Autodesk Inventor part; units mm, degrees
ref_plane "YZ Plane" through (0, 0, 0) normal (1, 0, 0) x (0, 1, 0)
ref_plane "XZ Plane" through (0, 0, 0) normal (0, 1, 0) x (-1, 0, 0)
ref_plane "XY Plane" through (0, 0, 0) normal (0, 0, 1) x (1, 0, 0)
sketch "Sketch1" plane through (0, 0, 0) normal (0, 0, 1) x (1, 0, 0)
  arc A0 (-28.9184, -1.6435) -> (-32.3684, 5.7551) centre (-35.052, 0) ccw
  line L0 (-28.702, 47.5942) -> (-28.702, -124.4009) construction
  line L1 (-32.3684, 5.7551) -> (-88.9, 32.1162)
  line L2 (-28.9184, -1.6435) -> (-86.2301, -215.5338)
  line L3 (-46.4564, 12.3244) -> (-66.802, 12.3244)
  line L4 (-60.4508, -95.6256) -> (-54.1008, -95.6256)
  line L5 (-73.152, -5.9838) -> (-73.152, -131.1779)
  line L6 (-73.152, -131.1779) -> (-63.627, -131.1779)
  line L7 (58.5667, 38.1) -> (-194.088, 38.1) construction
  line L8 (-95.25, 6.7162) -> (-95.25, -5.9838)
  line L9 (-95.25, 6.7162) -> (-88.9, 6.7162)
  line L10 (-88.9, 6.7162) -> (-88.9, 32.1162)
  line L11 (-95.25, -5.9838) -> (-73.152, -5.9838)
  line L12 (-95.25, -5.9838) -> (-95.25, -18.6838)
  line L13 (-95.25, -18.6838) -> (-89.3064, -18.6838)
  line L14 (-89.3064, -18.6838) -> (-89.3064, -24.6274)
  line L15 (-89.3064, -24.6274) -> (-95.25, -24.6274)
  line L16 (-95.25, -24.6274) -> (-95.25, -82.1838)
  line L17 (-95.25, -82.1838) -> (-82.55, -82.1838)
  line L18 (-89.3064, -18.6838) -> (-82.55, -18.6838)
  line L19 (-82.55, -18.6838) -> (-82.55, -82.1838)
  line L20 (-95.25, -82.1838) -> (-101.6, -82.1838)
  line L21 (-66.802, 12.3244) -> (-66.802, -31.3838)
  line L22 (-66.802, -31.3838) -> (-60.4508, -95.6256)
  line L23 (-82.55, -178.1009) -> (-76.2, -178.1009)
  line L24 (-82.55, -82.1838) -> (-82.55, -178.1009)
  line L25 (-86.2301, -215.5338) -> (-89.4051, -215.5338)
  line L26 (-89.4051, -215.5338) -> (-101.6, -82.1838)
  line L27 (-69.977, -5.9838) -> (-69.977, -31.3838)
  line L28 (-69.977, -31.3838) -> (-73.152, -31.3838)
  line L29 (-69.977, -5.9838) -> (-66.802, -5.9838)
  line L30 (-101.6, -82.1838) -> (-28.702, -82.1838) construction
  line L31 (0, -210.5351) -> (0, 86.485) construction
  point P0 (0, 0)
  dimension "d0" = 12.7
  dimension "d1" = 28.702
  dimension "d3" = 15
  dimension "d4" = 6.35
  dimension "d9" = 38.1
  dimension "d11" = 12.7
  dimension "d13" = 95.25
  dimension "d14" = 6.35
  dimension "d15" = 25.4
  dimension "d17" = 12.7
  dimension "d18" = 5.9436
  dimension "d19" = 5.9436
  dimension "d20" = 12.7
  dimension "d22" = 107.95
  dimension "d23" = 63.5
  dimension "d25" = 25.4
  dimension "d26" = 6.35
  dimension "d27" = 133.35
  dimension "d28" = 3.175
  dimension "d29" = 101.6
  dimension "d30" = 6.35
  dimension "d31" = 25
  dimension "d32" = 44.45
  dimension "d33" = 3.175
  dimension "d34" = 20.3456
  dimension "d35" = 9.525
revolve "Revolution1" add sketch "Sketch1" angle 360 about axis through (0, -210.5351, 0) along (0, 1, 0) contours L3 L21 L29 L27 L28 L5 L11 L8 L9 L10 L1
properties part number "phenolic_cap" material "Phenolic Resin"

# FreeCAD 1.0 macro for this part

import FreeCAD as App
import Part
import Sketcher

V = App.Vector
Q = App.Units.Quantity


def add_polygon(sketch, points):
    """Adds a closed chain of lines whose ends are joined by coincident constraints."""
    first, n = sketch.GeometryCount, len(points)
    for a, b in zip(points, points[1:] + points[:1]):
        sketch.addGeometry(Part.LineSegment(App.Vector(*a, 0), App.Vector(*b, 0)), False)
    for i in range(n):
        sketch.addConstraint(Sketcher.Constraint("Coincident", first + i, 2, first + (i + 1) % n, 1))

doc = App.newDocument("Part")
body = doc.addObject("PartDesign::Body", "Body")

# Sketch on XY plane
sketch1 = body.newObject("Sketcher::SketchObject", "Sketch")
sketch1.AttachmentSupport = (doc.getObject("XY_Plane"), [""])
sketch1.MapMode = "FlatFace"
add_polygon(sketch1, [(-66.8, 12.3), (-46.5, 12.3), (-88.9, 32.1), (-88.9, 6.7), (-95.2, 6.7), (-95.2, -6), (-73.2, -6), (-73.2, -31.4), (-70, -31.4), (-70, -6), (-66.8, -6)])  # lines 0-10
sketch1.addConstraint(Sketcher.Constraint("Horizontal", 0))
sketch1.addConstraint(Sketcher.Constraint("Vertical", 2))
sketch1.addConstraint(Sketcher.Constraint("Horizontal", 3))
sketch1.addConstraint(Sketcher.Constraint("Vertical", 4))
sketch1.addConstraint(Sketcher.Constraint("Horizontal", 5))
sketch1.addConstraint(Sketcher.Constraint("Vertical", 6))
sketch1.addConstraint(Sketcher.Constraint("Horizontal", 7))
sketch1.addConstraint(Sketcher.Constraint("Vertical", 8))
sketch1.addConstraint(Sketcher.Constraint("Horizontal", 9))
sketch1.addConstraint(Sketcher.Constraint("Vertical", 10))
sketch1.addConstraint(Sketcher.Constraint("Horizontal", 5, 2, 8, 2))
sketch1.addConstraint(Sketcher.Constraint("Equal", 7, 9))
sketch1.addConstraint(Sketcher.Constraint("Equal", 2, 6))
sketch1.addConstraint(Sketcher.Constraint("DistanceY", 2, 2, 2, 1, Q("1 in")))
sketch1.addConstraint(Sketcher.Constraint("DistanceY", 4, 2, 4, 1, Q("0.5 in")))
sketch1.addConstraint(Sketcher.Constraint("DistanceX", 3, 2, 3, 1, Q("0.25 in")))
sketch1.addConstraint(Sketcher.Constraint("DistanceX", 0, 1, 0, 2, Q("0.801 in")))
sketch1.addConstraint(Sketcher.Constraint("DistanceX", 7, 1, 7, 2, Q("0.125 in")))
sketch1.addConstraint(Sketcher.Constraint("DistanceX", 3, 2, -1, 1, Q("3.75 in")))
sketch1.addConstraint(Sketcher.Constraint("Angle", 1, Q("155 deg")))
sketch1.addConstraint(Sketcher.Constraint("DistanceX", 5, 1, 5, 2, Q("0.87 in")))
sketch1.addConstraint(Sketcher.Constraint("DistanceY", -1, 1, 0, 2, Q("12.3244 mm")))
revolution = body.newObject("PartDesign::Revolution", "Revolution")
revolution.Profile = sketch1
revolution.ReferenceAxis = (sketch1, ["V_Axis"])
revolution.Angle = 360

doc.recompute()
